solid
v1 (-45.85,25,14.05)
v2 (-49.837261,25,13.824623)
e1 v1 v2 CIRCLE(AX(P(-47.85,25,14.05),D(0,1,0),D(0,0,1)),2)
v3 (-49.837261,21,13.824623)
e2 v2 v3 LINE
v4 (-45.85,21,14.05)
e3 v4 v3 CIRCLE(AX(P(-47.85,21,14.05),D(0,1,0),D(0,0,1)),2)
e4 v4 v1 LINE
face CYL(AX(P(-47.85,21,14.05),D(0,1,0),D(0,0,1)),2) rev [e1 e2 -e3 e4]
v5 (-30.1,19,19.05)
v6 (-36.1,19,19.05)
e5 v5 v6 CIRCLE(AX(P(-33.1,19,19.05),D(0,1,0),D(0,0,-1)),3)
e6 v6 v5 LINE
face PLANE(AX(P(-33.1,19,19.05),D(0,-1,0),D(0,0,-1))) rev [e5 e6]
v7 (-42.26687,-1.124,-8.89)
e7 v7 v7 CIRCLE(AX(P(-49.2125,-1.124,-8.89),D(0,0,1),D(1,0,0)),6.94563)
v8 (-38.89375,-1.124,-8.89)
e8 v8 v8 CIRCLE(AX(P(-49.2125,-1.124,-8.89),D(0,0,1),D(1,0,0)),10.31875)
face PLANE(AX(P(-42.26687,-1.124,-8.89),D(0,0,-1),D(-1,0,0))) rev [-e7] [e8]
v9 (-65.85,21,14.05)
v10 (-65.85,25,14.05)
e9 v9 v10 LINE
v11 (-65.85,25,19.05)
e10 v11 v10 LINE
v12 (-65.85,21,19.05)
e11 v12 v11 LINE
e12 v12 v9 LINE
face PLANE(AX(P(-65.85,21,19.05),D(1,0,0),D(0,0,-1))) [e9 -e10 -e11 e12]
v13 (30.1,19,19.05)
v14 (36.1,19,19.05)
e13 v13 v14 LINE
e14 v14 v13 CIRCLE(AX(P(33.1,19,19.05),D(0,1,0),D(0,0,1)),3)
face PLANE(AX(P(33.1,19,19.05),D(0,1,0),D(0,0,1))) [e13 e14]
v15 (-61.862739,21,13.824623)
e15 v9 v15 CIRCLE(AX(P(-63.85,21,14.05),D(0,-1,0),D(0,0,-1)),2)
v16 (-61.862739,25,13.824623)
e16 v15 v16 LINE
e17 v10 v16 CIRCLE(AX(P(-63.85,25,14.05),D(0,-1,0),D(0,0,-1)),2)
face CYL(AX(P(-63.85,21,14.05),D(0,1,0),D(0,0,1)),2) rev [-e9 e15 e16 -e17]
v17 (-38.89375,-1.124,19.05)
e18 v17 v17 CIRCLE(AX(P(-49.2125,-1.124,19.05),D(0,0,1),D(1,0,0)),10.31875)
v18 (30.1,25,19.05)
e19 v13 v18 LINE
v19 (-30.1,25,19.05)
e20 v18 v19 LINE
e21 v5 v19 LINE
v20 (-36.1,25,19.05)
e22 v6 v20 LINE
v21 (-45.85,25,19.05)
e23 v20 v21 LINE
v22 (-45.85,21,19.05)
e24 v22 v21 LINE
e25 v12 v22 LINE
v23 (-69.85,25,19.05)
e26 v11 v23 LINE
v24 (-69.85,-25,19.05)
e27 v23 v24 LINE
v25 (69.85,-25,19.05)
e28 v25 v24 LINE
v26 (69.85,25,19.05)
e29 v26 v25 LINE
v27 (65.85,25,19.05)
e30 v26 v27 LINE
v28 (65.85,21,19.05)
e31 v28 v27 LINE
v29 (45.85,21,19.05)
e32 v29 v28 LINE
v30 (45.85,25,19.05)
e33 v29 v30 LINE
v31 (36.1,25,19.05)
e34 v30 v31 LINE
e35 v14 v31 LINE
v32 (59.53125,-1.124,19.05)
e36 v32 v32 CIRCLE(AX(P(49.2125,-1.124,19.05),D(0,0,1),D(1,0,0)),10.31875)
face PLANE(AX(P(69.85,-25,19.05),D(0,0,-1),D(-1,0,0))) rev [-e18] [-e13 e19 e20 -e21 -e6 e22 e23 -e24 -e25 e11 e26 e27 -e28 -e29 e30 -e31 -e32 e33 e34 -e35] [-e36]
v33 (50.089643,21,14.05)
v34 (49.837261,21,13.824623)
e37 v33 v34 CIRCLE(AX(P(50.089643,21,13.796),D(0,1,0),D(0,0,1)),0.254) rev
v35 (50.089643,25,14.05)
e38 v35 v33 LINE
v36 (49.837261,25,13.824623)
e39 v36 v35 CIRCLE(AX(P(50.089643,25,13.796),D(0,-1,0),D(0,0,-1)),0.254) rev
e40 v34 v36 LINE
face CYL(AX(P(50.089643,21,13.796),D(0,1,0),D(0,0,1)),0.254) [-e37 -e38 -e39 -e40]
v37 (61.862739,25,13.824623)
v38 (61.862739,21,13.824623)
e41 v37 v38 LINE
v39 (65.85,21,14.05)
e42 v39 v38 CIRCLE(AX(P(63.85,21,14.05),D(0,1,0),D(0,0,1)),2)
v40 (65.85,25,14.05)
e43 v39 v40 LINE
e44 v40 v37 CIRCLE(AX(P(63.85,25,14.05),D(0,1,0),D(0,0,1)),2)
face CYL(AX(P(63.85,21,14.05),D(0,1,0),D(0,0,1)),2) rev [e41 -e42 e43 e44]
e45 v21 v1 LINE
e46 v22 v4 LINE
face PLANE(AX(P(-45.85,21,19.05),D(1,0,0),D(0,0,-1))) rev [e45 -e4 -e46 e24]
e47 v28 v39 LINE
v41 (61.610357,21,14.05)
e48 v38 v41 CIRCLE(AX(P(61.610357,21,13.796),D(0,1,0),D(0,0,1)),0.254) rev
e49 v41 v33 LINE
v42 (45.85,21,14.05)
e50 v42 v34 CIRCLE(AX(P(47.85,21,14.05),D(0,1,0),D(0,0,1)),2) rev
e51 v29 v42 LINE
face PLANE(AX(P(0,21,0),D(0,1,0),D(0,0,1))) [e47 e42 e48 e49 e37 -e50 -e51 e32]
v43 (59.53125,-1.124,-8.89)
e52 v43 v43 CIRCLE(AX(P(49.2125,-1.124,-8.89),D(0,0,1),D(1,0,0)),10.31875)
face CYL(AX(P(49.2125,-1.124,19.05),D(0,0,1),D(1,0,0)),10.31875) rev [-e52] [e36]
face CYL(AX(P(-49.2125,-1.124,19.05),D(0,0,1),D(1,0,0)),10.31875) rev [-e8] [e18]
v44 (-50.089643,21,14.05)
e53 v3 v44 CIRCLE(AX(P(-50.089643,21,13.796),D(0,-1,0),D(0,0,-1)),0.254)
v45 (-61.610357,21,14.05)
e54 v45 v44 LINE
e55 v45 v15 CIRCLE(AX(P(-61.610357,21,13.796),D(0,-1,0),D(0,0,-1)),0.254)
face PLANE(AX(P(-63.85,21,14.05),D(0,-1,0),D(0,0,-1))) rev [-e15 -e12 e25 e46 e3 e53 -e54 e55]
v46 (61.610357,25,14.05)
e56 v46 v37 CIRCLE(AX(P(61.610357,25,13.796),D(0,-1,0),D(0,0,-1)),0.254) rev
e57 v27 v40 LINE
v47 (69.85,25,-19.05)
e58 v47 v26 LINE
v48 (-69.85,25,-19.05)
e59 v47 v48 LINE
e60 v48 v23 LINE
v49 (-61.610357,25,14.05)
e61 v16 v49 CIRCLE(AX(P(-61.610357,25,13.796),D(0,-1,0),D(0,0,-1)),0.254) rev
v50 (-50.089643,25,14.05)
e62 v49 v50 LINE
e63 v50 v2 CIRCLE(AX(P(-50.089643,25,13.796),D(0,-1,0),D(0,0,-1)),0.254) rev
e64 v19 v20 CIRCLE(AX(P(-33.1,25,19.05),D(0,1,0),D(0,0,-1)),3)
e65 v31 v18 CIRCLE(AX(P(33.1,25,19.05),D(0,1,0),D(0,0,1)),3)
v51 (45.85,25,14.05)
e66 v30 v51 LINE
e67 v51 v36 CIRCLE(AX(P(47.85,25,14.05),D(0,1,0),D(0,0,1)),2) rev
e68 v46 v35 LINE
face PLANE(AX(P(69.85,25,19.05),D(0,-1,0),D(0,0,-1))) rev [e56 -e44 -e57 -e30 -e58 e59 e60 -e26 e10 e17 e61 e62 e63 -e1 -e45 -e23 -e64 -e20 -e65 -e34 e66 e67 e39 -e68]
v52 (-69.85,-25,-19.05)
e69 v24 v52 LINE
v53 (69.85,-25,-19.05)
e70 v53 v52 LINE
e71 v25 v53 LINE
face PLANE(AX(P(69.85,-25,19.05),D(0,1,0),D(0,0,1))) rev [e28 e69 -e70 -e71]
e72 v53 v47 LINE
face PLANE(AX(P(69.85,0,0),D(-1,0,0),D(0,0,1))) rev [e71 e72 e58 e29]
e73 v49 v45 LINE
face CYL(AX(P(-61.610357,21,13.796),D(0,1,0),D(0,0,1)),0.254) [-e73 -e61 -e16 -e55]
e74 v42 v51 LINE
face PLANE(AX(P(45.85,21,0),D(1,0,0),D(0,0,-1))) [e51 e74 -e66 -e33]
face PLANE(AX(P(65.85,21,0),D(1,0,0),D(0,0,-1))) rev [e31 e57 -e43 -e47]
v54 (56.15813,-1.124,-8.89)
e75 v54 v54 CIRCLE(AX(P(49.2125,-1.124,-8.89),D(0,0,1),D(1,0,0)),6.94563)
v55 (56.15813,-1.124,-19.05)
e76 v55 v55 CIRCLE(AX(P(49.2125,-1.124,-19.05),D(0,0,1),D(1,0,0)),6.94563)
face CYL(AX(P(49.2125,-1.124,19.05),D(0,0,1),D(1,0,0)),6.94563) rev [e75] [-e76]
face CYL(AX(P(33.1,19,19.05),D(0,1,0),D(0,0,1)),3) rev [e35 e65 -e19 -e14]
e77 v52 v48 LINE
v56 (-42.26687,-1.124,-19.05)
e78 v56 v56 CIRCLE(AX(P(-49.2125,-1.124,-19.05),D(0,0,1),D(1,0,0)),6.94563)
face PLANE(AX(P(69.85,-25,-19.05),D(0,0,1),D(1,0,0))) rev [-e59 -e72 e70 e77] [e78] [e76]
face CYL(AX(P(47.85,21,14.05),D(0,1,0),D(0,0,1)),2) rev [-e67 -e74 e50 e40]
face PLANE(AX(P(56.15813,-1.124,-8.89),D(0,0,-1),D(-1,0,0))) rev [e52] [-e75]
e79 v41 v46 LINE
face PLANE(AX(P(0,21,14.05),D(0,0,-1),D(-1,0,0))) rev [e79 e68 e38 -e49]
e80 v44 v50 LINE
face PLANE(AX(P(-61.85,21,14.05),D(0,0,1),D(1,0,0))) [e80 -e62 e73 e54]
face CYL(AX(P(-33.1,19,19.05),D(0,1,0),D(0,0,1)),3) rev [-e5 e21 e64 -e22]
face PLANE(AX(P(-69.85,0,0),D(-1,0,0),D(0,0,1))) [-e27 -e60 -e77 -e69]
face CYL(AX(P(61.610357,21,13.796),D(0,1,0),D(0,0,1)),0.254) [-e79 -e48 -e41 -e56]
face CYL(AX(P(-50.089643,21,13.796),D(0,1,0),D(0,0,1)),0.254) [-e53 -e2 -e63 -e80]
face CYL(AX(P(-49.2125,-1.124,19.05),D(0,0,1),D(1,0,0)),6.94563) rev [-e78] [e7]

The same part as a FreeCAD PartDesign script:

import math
import FreeCAD as App
import Part
import Sketcher
Q = App.Units.Quantity


def edges_at(feature, points):
    """Names of the edges that pass closest to the given points."""
    edges = feature.Shape.Edges
    near = lambda p: min(range(len(edges)), key=lambda i: edges[i].distToShape(Part.Vertex(*p))[0])
    return sorted({f"Edge{near(p) + 1}" for p in points})


def add_polygon(sketch, points):
    """Adds a closed chain of lines whose ends are joined by coincident constraints."""
    first, n = sketch.GeometryCount, len(points)
    for a, b in zip(points, points[1:] + points[:1]):
        sketch.addGeometry(Part.LineSegment(App.Vector(*a, 0), App.Vector(*b, 0)), False)
    for i in range(n):
        sketch.addConstraint(Sketcher.Constraint("Coincident", first + i, 2, first + (i + 1) % n, 1))

doc = App.newDocument("Part")
body = doc.addObject("PartDesign::Body", "Body")

sketch1 = body.newObject("Sketcher::SketchObject", "Sketch")
sketch1.AttachmentSupport = (doc.getObject("YZ_Plane"), [""])
sketch1.MapMode = "FlatFace"
add_polygon(sketch1, [(25, 19), (-25, 19), (-25, -19), (25, -19)])
sketch1.addConstraint([
    Sketcher.Constraint("Horizontal", 0),
    Sketcher.Constraint("Vertical", 1),
    Sketcher.Constraint("Horizontal", 2),
    Sketcher.Constraint("Vertical", 3),
    Sketcher.Constraint("Symmetric", 0, 2, 2, 2, -1, 1),
    Sketcher.Constraint("DistanceX", 0, 2, 0, 1, Q("50 mm")),
    Sketcher.Constraint("DistanceY", 1, 2, 1, 1, Q("38.1 mm")),
])
pad1 = body.newObject("PartDesign::Pad", "Pad")
pad1.Profile = sketch1
pad1.Length = 139.7
pad1.Midplane = True

sketch2 = body.newObject("Sketcher::SketchObject", "Sketch001")
sketch2.AttachmentSupport = (doc.getObject("XY_Plane"), [""])
sketch2.MapMode = "FlatFace"
sketch2.AttachmentOffset = App.Placement(App.Vector(0, 0, 19.05), App.Rotation())
sketch2.addGeometry([
    Part.Circle(App.Vector(-49, -1, 0), App.Vector(0, 0, 1), 7),
    Part.Circle(App.Vector(49, -1, 0), App.Vector(0, 0, 1), 7),
], False)
sketch2.addConstraint([
    Sketcher.Constraint("Equal", 0, 1),
    Sketcher.Constraint("Symmetric", 0, 3, 1, 3, -2),
    Sketcher.Constraint("Diameter", 0, Q("13.89126 mm")),
    Sketcher.Constraint("DistanceY", 0, 3, -1, 1, Q("1.124 mm")),
    Sketcher.Constraint("DistanceX", 0, 3, 1, 3, Q("98.425 mm")),
])
doc.recompute()
hole = body.newObject("PartDesign::Hole", "Hole")
hole.Profile = sketch2
hole.ThreadType = "None"
hole.Diameter = 13.89126
hole.DepthType = "ThroughAll"
hole.HoleCutType = "Counterbore"
hole.HoleCutDiameter = 20.6375
hole.HoleCutDepth = 27.94

sketch3 = body.newObject("Sketcher::SketchObject", "Sketch002")
sketch3.AttachmentSupport = (doc.getObject("XZ_Plane"), [""])
sketch3.MapMode = "FlatFace"
sketch3.AttachmentOffset = App.Placement(App.Vector(0, 0, -25), App.Rotation())
sketch3.addGeometry([
    Part.LineSegment(App.Vector(-36.1, 19.1, 0), App.Vector(-30.1, 19.1, 0)),
    Part.ArcOfCircle(Part.Circle(App.Vector(-33.1, 19.1, 0), App.Vector(0, 0, 1), 3), math.radians(180), math.radians(360)),
    Part.LineSegment(App.Vector(30.1, 19.1, 0), App.Vector(36.1, 19.1, 0)),
    Part.ArcOfCircle(Part.Circle(App.Vector(33.1, 19.1, 0), App.Vector(0, 0, 1), 3), math.radians(180), math.radians(360)),
], False)
sketch3.addConstraint([
    Sketcher.Constraint("Coincident", 0, 1, 1, 1),
    Sketcher.Constraint("Coincident", 1, 2, 0, 2),
    Sketcher.Constraint("Coincident", 2, 1, 3, 1),
    Sketcher.Constraint("Coincident", 3, 2, 2, 2),
    Sketcher.Constraint("Horizontal", 0),
    Sketcher.Constraint("Horizontal", 2),
    Sketcher.Constraint("Equal", 1, 3),
    Sketcher.Constraint("Symmetric", 1, 3, 3, 3, -2),
    Sketcher.Constraint("Horizontal", 3, 3, 0, 1),
    Sketcher.Constraint("Horizontal", 1, 2, 2, 1),
    Sketcher.Constraint("Radius", 1, Q("3 mm")),
    Sketcher.Constraint("DistanceX", 1, 3, -1, 1, Q("33.1 mm")),
    Sketcher.Constraint("DistanceY", -1, 1, 1, 3, Q("19.05 mm")),
])
pocket1 = body.newObject("PartDesign::Pocket", "Pocket")
pocket1.Profile = sketch3
pocket1.Length = 6
pocket1.Reversed = True

sketch4 = body.newObject("Sketcher::SketchObject", "Sketch003")
sketch4.AttachmentSupport = (doc.getObject("XZ_Plane"), [""])
sketch4.MapMode = "FlatFace"
sketch4.AttachmentOffset = App.Placement(App.Vector(0, 0, -25), App.Rotation())
sketch4.addGeometry([
    Part.LineSegment(App.Vector(45.9, 14.1, 0), App.Vector(45.9, 19.1, 0)),
    Part.LineSegment(App.Vector(45.9, 19.1, 0), App.Vector(65.8, 19.1, 0)),
    Part.LineSegment(App.Vector(65.8, 19.1, 0), App.Vector(65.8, 14.1, 0)),
    Part.ArcOfCircle(Part.Circle(App.Vector(63.9, 14.1, 0), App.Vector(0, 0, 1), 2), math.radians(180), math.radians(360)),
    Part.LineSegment(App.Vector(61.9, 14.1, 0), App.Vector(49.9, 14.1, 0)),
    Part.ArcOfCircle(Part.Circle(App.Vector(47.9, 14.1, 0), App.Vector(0, 0, 1), 2), math.radians(180), math.radians(360)),
    Part.LineSegment(App.Vector(-49.9, 14.1, 0), App.Vector(-61.9, 14.1, 0)),
    Part.ArcOfCircle(Part.Circle(App.Vector(-63.9, 14.1, 0), App.Vector(0, 0, 1), 2), math.radians(180), math.radians(360)),
    Part.LineSegment(App.Vector(-65.8, 14.1, 0), App.Vector(-65.8, 19.1, 0)),
    Part.LineSegment(App.Vector(-65.8, 19.1, 0), App.Vector(-45.9, 19.1, 0)),
    Part.LineSegment(App.Vector(-45.9, 19.1, 0), App.Vector(-45.9, 14.1, 0)),
    Part.ArcOfCircle(Part.Circle(App.Vector(-47.9, 14.1, 0), App.Vector(0, 0, 1), 2), math.radians(180), math.radians(360)),
], False)
sketch4.addConstraint([
    Sketcher.Constraint("Coincident", 0, 2, 1, 1),
    Sketcher.Constraint("Coincident", 1, 2, 2, 1),
    Sketcher.Constraint("Tangent", 2, 2, 3, 2),
    Sketcher.Constraint("Coincident", 3, 1, 4, 1),
    Sketcher.Constraint("Coincident", 4, 2, 5, 2),
    Sketcher.Constraint("Tangent", 5, 1, 0, 1),
    Sketcher.Constraint("Coincident", 6, 2, 7, 2),
    Sketcher.Constraint("Tangent", 7, 1, 8, 1),
    Sketcher.Constraint("Coincident", 8, 2, 9, 1),
    Sketcher.Constraint("Coincident", 9, 2, 10, 1),
    Sketcher.Constraint("Tangent", 10, 2, 11, 2),
    Sketcher.Constraint("Coincident", 11, 1, 6, 1),
    Sketcher.Constraint("Vertical", 0),
    Sketcher.Constraint("Horizontal", 1),
    Sketcher.Constraint("Vertical", 2),
    Sketcher.Constraint("Horizontal", 4),
    Sketcher.Constraint("Horizontal", 6),
    Sketcher.Constraint("Vertical", 8),
    Sketcher.Constraint("Horizontal", 9),
    Sketcher.Constraint("Vertical", 10),
    Sketcher.Constraint("Equal", 3, 5),
    Sketcher.Constraint("Equal", 5, 7),
    Sketcher.Constraint("Equal", 7, 11),
    Sketcher.Constraint("Symmetric", 3, 3, 7, 3, -2),
    Sketcher.Constraint("Symmetric", 5, 3, 11, 3, -2),
    Sketcher.Constraint("Horizontal", 3, 3, 5, 3),
    Sketcher.Constraint("Horizontal", 2, 2, 3, 1),
    Sketcher.Constraint("Horizontal", 5, 1, 6, 2),
    Sketcher.Constraint("Horizontal", 1, 2, 8, 2),
    Sketcher.Constraint("Radius", 3, Q("2 mm")),
    Sketcher.Constraint("DistanceX", 1, 1, 1, 2, Q("20 mm")),
    Sketcher.Constraint("DistanceY", 0, 1, 0, 2, Q("5 mm")),
    Sketcher.Constraint("DistanceX", 7, 3, 5, 3, Q("111.7 mm")),
    Sketcher.Constraint("DistanceY", -1, 1, 3, 3, Q("14.05 mm")),
])
pocket2 = body.newObject("PartDesign::Pocket", "Pocket001")
pocket2.Profile = sketch4
pocket2.Length = 4
pocket2.Reversed = True
doc.recompute()

fillet = body.newObject("PartDesign::Fillet", "Fillet")
fillet.Base = (pocket2, edges_at(pocket2, [
    (49.85, 23, 14.05),
    (61.85, 23, 14.05),
    (-61.85, 23, 14.05),
    (-49.85, 23, 14.05),
]))
fillet.Radius = 0.254

doc.recompute()
